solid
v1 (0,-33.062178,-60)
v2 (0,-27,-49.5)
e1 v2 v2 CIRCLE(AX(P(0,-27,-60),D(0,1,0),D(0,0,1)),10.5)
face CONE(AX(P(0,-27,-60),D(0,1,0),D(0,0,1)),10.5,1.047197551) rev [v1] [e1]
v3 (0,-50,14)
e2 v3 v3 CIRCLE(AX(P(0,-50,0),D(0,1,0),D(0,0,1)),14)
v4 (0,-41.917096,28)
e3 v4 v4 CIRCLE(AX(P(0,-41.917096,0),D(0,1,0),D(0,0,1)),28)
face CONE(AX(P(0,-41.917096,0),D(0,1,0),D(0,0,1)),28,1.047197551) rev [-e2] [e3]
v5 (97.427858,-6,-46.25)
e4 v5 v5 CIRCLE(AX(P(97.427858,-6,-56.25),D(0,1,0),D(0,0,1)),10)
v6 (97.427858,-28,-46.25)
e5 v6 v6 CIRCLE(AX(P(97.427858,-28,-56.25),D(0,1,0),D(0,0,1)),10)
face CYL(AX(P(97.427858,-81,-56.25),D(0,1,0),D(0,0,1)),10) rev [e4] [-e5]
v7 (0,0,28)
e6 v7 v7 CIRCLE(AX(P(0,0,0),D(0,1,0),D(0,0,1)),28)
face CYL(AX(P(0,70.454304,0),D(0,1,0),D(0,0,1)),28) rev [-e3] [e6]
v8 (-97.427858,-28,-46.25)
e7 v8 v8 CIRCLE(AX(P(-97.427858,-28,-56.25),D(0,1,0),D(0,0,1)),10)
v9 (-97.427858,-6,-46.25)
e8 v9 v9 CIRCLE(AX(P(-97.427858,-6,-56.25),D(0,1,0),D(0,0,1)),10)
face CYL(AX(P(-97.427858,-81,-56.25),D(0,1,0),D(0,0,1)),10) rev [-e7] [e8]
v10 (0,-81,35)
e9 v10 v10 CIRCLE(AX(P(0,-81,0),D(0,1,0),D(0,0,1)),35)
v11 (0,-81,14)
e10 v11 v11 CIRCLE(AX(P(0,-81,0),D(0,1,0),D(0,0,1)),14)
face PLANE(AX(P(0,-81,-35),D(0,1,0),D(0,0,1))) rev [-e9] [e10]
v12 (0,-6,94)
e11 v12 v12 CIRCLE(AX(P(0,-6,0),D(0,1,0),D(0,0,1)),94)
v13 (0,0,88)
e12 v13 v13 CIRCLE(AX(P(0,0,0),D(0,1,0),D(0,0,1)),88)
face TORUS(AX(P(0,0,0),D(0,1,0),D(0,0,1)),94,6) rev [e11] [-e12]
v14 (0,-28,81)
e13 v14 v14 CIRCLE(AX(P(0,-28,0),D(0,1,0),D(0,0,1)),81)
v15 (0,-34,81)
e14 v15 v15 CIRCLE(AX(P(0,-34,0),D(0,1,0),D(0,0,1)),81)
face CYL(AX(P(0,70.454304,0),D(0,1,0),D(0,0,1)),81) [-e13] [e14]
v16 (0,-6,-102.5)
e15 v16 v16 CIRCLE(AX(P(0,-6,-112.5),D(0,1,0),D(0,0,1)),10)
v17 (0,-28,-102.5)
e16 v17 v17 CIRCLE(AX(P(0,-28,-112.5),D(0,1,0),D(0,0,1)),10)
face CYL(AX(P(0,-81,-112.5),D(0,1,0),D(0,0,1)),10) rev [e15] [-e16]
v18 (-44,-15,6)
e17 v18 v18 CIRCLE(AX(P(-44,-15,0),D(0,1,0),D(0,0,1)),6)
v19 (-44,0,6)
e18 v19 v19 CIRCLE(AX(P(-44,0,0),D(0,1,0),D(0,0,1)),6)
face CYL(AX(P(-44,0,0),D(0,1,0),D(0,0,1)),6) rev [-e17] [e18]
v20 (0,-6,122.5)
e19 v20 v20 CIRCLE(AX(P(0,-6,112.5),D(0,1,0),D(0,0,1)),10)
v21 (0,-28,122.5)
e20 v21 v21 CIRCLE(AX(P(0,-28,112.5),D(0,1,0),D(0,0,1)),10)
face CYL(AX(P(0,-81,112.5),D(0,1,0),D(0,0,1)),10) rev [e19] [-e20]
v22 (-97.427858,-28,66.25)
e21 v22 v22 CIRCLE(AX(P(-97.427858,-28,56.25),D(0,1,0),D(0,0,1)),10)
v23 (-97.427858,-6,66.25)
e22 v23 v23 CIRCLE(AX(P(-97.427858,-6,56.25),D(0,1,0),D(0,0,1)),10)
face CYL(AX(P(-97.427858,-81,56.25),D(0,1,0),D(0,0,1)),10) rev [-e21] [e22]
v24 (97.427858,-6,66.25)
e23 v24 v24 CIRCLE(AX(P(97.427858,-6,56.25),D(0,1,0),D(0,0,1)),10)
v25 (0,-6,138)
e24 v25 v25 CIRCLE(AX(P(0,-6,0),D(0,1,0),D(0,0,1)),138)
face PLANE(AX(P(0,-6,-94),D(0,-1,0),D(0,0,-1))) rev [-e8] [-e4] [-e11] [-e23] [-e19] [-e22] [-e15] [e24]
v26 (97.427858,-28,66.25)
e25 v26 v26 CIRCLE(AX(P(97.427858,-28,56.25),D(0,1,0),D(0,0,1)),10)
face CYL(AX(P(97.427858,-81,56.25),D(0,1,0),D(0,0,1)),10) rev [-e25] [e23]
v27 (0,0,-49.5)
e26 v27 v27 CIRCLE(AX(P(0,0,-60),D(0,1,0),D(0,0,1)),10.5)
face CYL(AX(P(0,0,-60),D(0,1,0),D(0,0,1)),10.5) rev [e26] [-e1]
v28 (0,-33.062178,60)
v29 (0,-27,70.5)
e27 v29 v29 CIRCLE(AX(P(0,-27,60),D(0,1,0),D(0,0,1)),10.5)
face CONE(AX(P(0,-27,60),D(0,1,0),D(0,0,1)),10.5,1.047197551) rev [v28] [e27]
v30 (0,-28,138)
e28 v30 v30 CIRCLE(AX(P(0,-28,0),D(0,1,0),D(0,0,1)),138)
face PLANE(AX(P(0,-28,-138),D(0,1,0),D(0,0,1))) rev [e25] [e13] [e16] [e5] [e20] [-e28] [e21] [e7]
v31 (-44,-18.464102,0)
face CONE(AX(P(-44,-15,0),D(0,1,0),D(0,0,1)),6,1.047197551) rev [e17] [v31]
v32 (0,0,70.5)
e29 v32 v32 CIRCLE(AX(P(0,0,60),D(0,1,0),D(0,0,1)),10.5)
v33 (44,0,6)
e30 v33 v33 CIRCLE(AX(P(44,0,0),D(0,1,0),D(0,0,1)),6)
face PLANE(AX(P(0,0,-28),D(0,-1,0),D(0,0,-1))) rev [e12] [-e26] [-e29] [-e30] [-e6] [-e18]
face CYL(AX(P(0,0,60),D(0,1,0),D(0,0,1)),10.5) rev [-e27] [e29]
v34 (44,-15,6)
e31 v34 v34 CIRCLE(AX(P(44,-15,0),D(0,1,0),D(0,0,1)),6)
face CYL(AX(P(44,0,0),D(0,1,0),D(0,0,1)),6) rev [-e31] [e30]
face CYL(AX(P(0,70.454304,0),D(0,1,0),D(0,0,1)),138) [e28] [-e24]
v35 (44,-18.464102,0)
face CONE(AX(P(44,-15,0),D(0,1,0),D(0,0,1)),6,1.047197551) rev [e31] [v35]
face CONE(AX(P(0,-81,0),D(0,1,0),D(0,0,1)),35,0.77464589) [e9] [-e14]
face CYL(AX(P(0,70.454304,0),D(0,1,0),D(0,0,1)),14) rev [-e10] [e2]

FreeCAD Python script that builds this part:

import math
import FreeCAD as App
import Part
import Sketcher

V = App.Vector
Q = App.Units.Quantity

doc = App.newDocument("Part")
body = doc.addObject("PartDesign::Body", "Body")

# Sketch on YZ plane
sketch1 = body.newObject("Sketcher::SketchObject", "Sketch")
sketch1.AttachmentSupport = (doc.getObject("YZ_Plane"), [""])
sketch1.MapMode = "FlatFace"
sketch1.addGeometry(Part.LineSegment(V(0, -88, 0), V(0, -28, 0)), False)
sketch1.addGeometry(Part.LineSegment(V(0, -28, 0), V(-42, -28, 0)), False)
sketch1.addGeometry(Part.LineSegment(V(-42, -28, 0), V(-50, -14, 0)), False)
sketch1.addGeometry(Part.LineSegment(V(-50, -14, 0), V(-81, -14, 0)), False)
sketch1.addGeometry(Part.LineSegment(V(-81, -14, 0), V(-81, -35, 0)), False)
sketch1.addGeometry(Part.LineSegment(V(-81, -35, 0), V(-34, -81, 0)), False)
sketch1.addGeometry(Part.LineSegment(V(-34, -81, 0), V(-28, -81, 0)), False)
sketch1.addGeometry(Part.LineSegment(V(-28, -81, 0), V(-28, -138, 0)), False)
sketch1.addGeometry(Part.LineSegment(V(-28, -138, 0), V(-6, -138, 0)), False)
sketch1.addGeometry(Part.LineSegment(V(-6, -138, 0), V(-6, -94, 0)), False)
sketch1.addGeometry(Part.ArcOfCircle(Part.Circle(V(0, -94, 0), V(0, 0, 1), 6), math.radians(90), math.radians(180)), False)
sketch1.addConstraint(Sketcher.Constraint("Coincident", 0, 2, 1, 1))
sketch1.addConstraint(Sketcher.Constraint("Coincident", 1, 2, 2, 1))
sketch1.addConstraint(Sketcher.Constraint("Coincident", 2, 2, 3, 1))
sketch1.addConstraint(Sketcher.Constraint("Coincident", 3, 2, 4, 1))
sketch1.addConstraint(Sketcher.Constraint("Coincident", 4, 2, 5, 1))
sketch1.addConstraint(Sketcher.Constraint("Coincident", 5, 2, 6, 1))
sketch1.addConstraint(Sketcher.Constraint("Coincident", 6, 2, 7, 1))
sketch1.addConstraint(Sketcher.Constraint("Coincident", 7, 2, 8, 1))
sketch1.addConstraint(Sketcher.Constraint("Coincident", 8, 2, 9, 1))
sketch1.addConstraint(Sketcher.Constraint("Tangent", 9, 2, 10, 2))
sketch1.addConstraint(Sketcher.Constraint("Coincident", 10, 1, 0, 1))
sketch1.addConstraint(Sketcher.Constraint("Vertical", 0))
sketch1.addConstraint(Sketcher.Constraint("Horizontal", 1))
sketch1.addConstraint(Sketcher.Constraint("Horizontal", 3))
sketch1.addConstraint(Sketcher.Constraint("Vertical", 4))
sketch1.addConstraint(Sketcher.Constraint("Horizontal", 6))
sketch1.addConstraint(Sketcher.Constraint("Vertical", 7))
sketch1.addConstraint(Sketcher.Constraint("Horizontal", 8))
sketch1.addConstraint(Sketcher.Constraint("Vertical", 9))
sketch1.addConstraint(Sketcher.Constraint("PointOnObject", 10, 3, -2))
sketch1.addConstraint(Sketcher.Constraint("PointOnObject", 0, 2, -2))
sketch1.addConstraint(Sketcher.Constraint("Radius", 10, Q("6 mm")))
sketch1.addConstraint(Sketcher.Constraint("DistanceX", 3, 2, 3, 1, Q("31 mm")))
sketch1.addConstraint(Sketcher.Constraint("DistanceX", 6, 1, 6, 2, Q("6 mm")))
sketch1.addConstraint(Sketcher.Constraint("DistanceX", 8, 1, 8, 2, Q("22 mm")))
sketch1.addConstraint(Sketcher.Constraint("DistanceY", 0, 1, 0, 2, Q("60 mm")))
sketch1.addConstraint(Sketcher.Constraint("DistanceY", 4, 2, 4, 1, Q("21 mm")))
sketch1.addConstraint(Sketcher.Constraint("DistanceY", 7, 2, 7, 1, Q("57 mm")))
sketch1.addConstraint(Sketcher.Constraint("DistanceY", 9, 1, 9, 2, Q("44 mm")))
sketch1.addConstraint(Sketcher.Constraint("Angle", 2, Q("120 deg")))
sketch1.addConstraint(Sketcher.Constraint("DistanceY", 10, 3, -1, 1, Q("94 mm")))
sketch1.addConstraint(Sketcher.Constraint("DistanceX", 2, 2, -1, 1, Q("50 mm")))
sketch1.addConstraint(Sketcher.Constraint("DistanceY", 2, 2, -1, 1, Q("14 mm")))
revolution = body.newObject("PartDesign::Revolution", "Revolution")
revolution.Profile = sketch1
revolution.ReferenceAxis = (sketch1, ["H_Axis"])
revolution.Angle = 360

# Sketch on XZ plane
sketch2 = body.newObject("Sketcher::SketchObject", "Sketch001")
sketch2.AttachmentSupport = (doc.getObject("XZ_Plane"), [""])
sketch2.MapMode = "FlatFace"
sketch2.AttachmentOffset = App.Placement(V(0, 0, 6), App.Rotation())
sketch2.addGeometry(Part.Circle(V(0, -112, 0), V(0, 0, 1), 10), False)
sketch2.addGeometry(Part.Circle(V(97, -56, 0), V(0, 0, 1), 10), False)
sketch2.addGeometry(Part.Circle(V(97, 56, 0), V(0, 0, 1), 10), False)
sketch2.addGeometry(Part.Circle(V(0, 112, 0), V(0, 0, 1), 10), False)
sketch2.addGeometry(Part.Circle(V(-97, 56, 0), V(0, 0, 1), 10), False)
sketch2.addGeometry(Part.Circle(V(-97, -56, 0), V(0, 0, 1), 10), False)
sketch2.addConstraint(Sketcher.Constraint("Equal", 0, 1))
sketch2.addConstraint(Sketcher.Constraint("Equal", 1, 2))
sketch2.addConstraint(Sketcher.Constraint("Equal", 2, 3))
sketch2.addConstraint(Sketcher.Constraint("Equal", 3, 4))
sketch2.addConstraint(Sketcher.Constraint("Equal", 4, 5))
sketch2.addConstraint(Sketcher.Constraint("Symmetric", 0, 3, 3, 3, -1, 1))
sketch2.addConstraint(Sketcher.Constraint("Symmetric", 1, 3, 4, 3, -1, 1))
sketch2.addConstraint(Sketcher.Constraint("Symmetric", 2, 3, 5, 3, -1, 1))
sketch2.addConstraint(Sketcher.Constraint("Symmetric", 2, 3, 4, 3, -2))
sketch2.addConstraint(Sketcher.Constraint("PointOnObject", 0, 3, -2))
sketch2.addConstraint(Sketcher.Constraint("Diameter", 0, Q("20 mm")))
sketch2.addConstraint(Sketcher.Constraint("DistanceY", 0, 3, 3, 3, Q("225 mm")))
sketch2.addConstraint(Sketcher.Constraint("DistanceY", 1, 3, 2, 3, Q("112.5 mm")))
sketch2.addConstraint(Sketcher.Constraint("DistanceX", -1, 1, 1, 3, Q("97.427858 mm")))
pocket1 = body.newObject("PartDesign::Pocket", "Pocket")
pocket1.Profile = sketch2
pocket1.Type = "ThroughAll"
pocket1.Reversed = True

# Sketch on XZ plane
sketch3 = body.newObject("Sketcher::SketchObject", "Sketch002")
sketch3.AttachmentSupport = (doc.getObject("XZ_Plane"), [""])
sketch3.MapMode = "FlatFace"
sketch3.addGeometry(Part.Circle(V(0, 60, 0), V(0, 0, 1), 10), False)
sketch3.addGeometry(Part.Circle(V(0, -60, 0), V(0, 0, 1), 10), False)
sketch3.addConstraint(Sketcher.Constraint("Equal", 0, 1))
sketch3.addConstraint(Sketcher.Constraint("Symmetric", 0, 3, 1, 3, -1, 1))
sketch3.addConstraint(Sketcher.Constraint("PointOnObject", 0, 3, -2))
sketch3.addConstraint(Sketcher.Constraint("Diameter", 0, Q("21 mm")))
sketch3.addConstraint(Sketcher.Constraint("DistanceY", -1, 1, 0, 3, Q("60 mm")))
doc.recompute()
hole = body.newObject("PartDesign::Hole", "Hole")
hole.Profile = sketch3
hole.ThreadType = "None"
hole.Diameter = 21
hole.DepthType = "Dimension"
hole.Depth = 27
hole.DrillPoint = "Angled"
hole.DrillPointAngle = 120
hole.Reversed = True

# Sketch on XZ plane
sketch4 = body.newObject("Sketcher::SketchObject", "Sketch003")
sketch4.AttachmentSupport = (doc.getObject("XZ_Plane"), [""])
sketch4.MapMode = "FlatFace"
sketch4.addGeometry(Part.Circle(V(-44, 0, 0), V(0, 0, 1), 6), False)
sketch4.addGeometry(Part.Circle(V(44, 0, 0), V(0, 0, 1), 6), False)
sketch4.addConstraint(Sketcher.Constraint("Equal", 0, 1))
sketch4.addConstraint(Sketcher.Constraint("Symmetric", 0, 3, 1, 3, -1, 1))
sketch4.addConstraint(Sketcher.Constraint("PointOnObject", 0, 3, -1))
sketch4.addConstraint(Sketcher.Constraint("Diameter", 0, Q("12 mm")))
sketch4.addConstraint(Sketcher.Constraint("DistanceX", 0, 3, -1, 1, Q("44 mm")))
doc.recompute()
hole2 = body.newObject("PartDesign::Hole", "Hole001")
hole2.Profile = sketch4
hole2.ThreadType = "None"
hole2.Diameter = 12
hole2.DepthType = "Dimension"
hole2.Depth = 15
hole2.DrillPoint = "Angled"
hole2.DrillPointAngle = 120
hole2.Reversed = True

doc.recompute()
